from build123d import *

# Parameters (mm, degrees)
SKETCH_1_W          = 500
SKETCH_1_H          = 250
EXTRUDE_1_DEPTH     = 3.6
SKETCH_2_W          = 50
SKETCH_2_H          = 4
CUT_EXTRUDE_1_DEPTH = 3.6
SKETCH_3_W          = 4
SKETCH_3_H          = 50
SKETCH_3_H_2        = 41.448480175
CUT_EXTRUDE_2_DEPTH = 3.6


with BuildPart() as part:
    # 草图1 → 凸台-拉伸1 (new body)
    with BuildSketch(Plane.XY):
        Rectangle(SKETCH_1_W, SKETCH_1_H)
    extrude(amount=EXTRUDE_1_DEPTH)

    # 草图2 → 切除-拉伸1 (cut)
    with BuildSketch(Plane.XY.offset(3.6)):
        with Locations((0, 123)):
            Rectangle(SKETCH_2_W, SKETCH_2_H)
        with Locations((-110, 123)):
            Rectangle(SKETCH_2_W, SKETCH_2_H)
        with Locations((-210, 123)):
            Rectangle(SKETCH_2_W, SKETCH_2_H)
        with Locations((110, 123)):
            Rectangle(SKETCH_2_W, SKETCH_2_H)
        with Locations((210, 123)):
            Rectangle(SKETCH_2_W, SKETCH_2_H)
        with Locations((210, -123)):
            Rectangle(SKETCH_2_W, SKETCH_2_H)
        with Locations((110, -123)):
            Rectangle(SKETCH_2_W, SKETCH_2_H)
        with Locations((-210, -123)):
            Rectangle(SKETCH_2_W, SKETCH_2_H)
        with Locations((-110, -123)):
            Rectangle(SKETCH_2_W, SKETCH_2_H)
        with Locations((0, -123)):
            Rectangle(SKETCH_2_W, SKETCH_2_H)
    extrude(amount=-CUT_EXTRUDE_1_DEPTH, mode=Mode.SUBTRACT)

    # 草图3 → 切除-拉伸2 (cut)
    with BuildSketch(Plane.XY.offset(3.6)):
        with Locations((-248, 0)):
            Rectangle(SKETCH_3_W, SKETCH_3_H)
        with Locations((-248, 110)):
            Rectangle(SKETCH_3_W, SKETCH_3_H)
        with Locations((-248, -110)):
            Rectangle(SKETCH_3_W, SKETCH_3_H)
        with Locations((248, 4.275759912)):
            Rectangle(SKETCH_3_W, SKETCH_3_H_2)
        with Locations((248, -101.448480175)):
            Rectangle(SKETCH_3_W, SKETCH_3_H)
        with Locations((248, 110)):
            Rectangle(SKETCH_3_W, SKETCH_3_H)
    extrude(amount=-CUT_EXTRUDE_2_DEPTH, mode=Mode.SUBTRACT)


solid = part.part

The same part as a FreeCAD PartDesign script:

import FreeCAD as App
import Part
import Sketcher

V = App.Vector
Q = App.Units.Quantity


def add_polygon(sketch, points):
    """Adds a closed chain of lines whose ends are joined by coincident constraints."""
    first, n = sketch.GeometryCount, len(points)
    for a, b in zip(points, points[1:] + points[:1]):
        sketch.addGeometry(Part.LineSegment(App.Vector(*a, 0), App.Vector(*b, 0)), False)
    for i in range(n):
        sketch.addConstraint(Sketcher.Constraint("Coincident", first + i, 2, first + (i + 1) % n, 1))

doc = App.newDocument("Part")
body = doc.addObject("PartDesign::Body", "Body")

# Sketch on XY plane
sketch1 = body.newObject("Sketcher::SketchObject", "Sketch")
sketch1.AttachmentSupport = (doc.getObject("XY_Plane"), [""])
sketch1.MapMode = "FlatFace"
add_polygon(sketch1, [(-250, 125), (-250, -125), (250, -125), (250, 125)])  # lines 0-3
sketch1.addConstraint([
    Sketcher.Constraint("Vertical", 0),
    Sketcher.Constraint("Horizontal", 1),
    Sketcher.Constraint("Vertical", 2),
    Sketcher.Constraint("Horizontal", 3),
    Sketcher.Constraint("Symmetric", 0, 2, 2, 2, -1, 1),
    Sketcher.Constraint("DistanceX", 1, 1, 1, 2, Q("500 mm")),
    Sketcher.Constraint("DistanceY", 0, 2, 0, 1, Q("250 mm")),
])
pad1 = body.newObject("PartDesign::Pad", "Pad")
pad1.Profile = sketch1
pad1.Length = 3.6

# Sketch on XY plane
sketch2 = body.newObject("Sketcher::SketchObject", "Sketch001")
sketch2.AttachmentSupport = (doc.getObject("XY_Plane"), [""])
sketch2.MapMode = "FlatFace"
sketch2.AttachmentOffset = App.Placement(V(0, 0, 3.6), App.Rotation())
add_polygon(sketch2, [(-25, 125), (-25, 121), (25, 121), (25, 125)])  # lines 0-3
add_polygon(sketch2, [(-135, 125), (-135, 121), (-85, 121), (-85, 125)])  # lines 4-7
add_polygon(sketch2, [(-235, 125), (-235, 121), (-185, 121), (-185, 125)])  # lines 8-11
add_polygon(sketch2, [(85, 125), (85, 121), (135, 121), (135, 125)])  # lines 12-15
add_polygon(sketch2, [(185, 125), (185, 121), (235, 121), (235, 125)])  # lines 16-19
add_polygon(sketch2, [(185, -121), (185, -125), (235, -125), (235, -121)])  # lines 20-23
add_polygon(sketch2, [(85, -121), (85, -125), (135, -125), (135, -121)])  # lines 24-27
add_polygon(sketch2, [(-235, -121), (-235, -125), (-185, -125), (-185, -121)])  # lines 28-31
add_polygon(sketch2, [(-135, -121), (-135, -125), (-85, -125), (-85, -121)])  # lines 32-35
add_polygon(sketch2, [(-25, -121), (-25, -125), (25, -125), (25, -121)])  # lines 36-39
sketch2.addConstraint([
    Sketcher.Constraint("Vertical", 0),
    Sketcher.Constraint("Horizontal", 1),
    Sketcher.Constraint("Vertical", 2),
    Sketcher.Constraint("Horizontal", 3),
    Sketcher.Constraint("Vertical", 4),
    Sketcher.Constraint("Horizontal", 5),
    Sketcher.Constraint("Vertical", 6),
    Sketcher.Constraint("Horizontal", 7),
    Sketcher.Constraint("Vertical", 8),
    Sketcher.Constraint("Horizontal", 9),
    Sketcher.Constraint("Vertical", 10),
    Sketcher.Constraint("Horizontal", 11),
    Sketcher.Constraint("Vertical", 12),
    Sketcher.Constraint("Horizontal", 13),
    Sketcher.Constraint("Vertical", 14),
    Sketcher.Constraint("Horizontal", 15),
    Sketcher.Constraint("Vertical", 16),
    Sketcher.Constraint("Horizontal", 17),
    Sketcher.Constraint("Vertical", 18),
    Sketcher.Constraint("Horizontal", 19),
    Sketcher.Constraint("Vertical", 20),
    Sketcher.Constraint("Horizontal", 21),
    Sketcher.Constraint("Vertical", 22),
    Sketcher.Constraint("Horizontal", 23),
    Sketcher.Constraint("Vertical", 24),
    Sketcher.Constraint("Horizontal", 25),
    Sketcher.Constraint("Vertical", 26),
    Sketcher.Constraint("Horizontal", 27),
    Sketcher.Constraint("Vertical", 28),
    Sketcher.Constraint("Horizontal", 29),
    Sketcher.Constraint("Vertical", 30),
    Sketcher.Constraint("Horizontal", 31),
    Sketcher.Constraint("Vertical", 32),
    Sketcher.Constraint("Horizontal", 33),
    Sketcher.Constraint("Vertical", 34),
    Sketcher.Constraint("Horizontal", 35),
    Sketcher.Constraint("Vertical", 36),
    Sketcher.Constraint("Horizontal", 37),
    Sketcher.Constraint("Vertical", 38),
    Sketcher.Constraint("Horizontal", 39),
    Sketcher.Constraint("Symmetric", 10, 2, 20, 2, -1, 1),
    Sketcher.Constraint("Symmetric", 8, 2, 22, 2, -1, 1),
    Sketcher.Constraint("Symmetric", 6, 2, 24, 2, -1, 1),
    Sketcher.Constraint("Symmetric", 4, 2, 26, 2, -1, 1),
    Sketcher.Constraint("Symmetric", 18, 2, 28, 2, -1, 1),
    Sketcher.Constraint("Symmetric", 16, 2, 30, 2, -1, 1),
    Sketcher.Constraint("Symmetric", 14, 2, 32, 2, -1, 1),
    Sketcher.Constraint("Symmetric", 12, 2, 34, 2, -1, 1),
    Sketcher.Constraint("Symmetric", 2, 2, 36, 2, -1, 1),
    Sketcher.Constraint("Symmetric", 0, 2, 38, 2, -1, 1),
    Sketcher.Constraint("Symmetric", 5, 2, 12, 2, -2),
    Sketcher.Constraint("Symmetric", 7, 2, 14, 2, -2),
    Sketcher.Constraint("Symmetric", 9, 2, 16, 2, -2),
    Sketcher.Constraint("Symmetric", 11, 2, 18, 2, -2),
    Sketcher.Constraint("Horizontal", 1, 2, 4, 2),
    Sketcher.Constraint("Horizontal", 3, 2, 6, 2),
    Sketcher.Constraint("Horizontal", 5, 2, 8, 2),
    Sketcher.Constraint("Horizontal", 7, 2, 10, 2),
    Sketcher.Constraint("Vertical", 3, 2, 36, 2),
    Sketcher.Constraint("Equal", 3, 5),
    Sketcher.Constraint("Equal", 7, 9),
    Sketcher.Constraint("DistanceX", 1, 1, 1, 2, Q("50 mm")),
    Sketcher.Constraint("DistanceY", 0, 2, 0, 1, Q("4 mm")),
    Sketcher.Constraint("DistanceY", -1, 1, 0, 2, Q("121 mm")),
    Sketcher.Constraint("DistanceX", 4, 2, -1, 1, Q("135 mm")),
    Sketcher.Constraint("DistanceX", 8, 2, -1, 1, Q("235 mm")),
])
pocket1 = body.newObject("PartDesign::Pocket", "Pocket")
pocket1.Profile = sketch2
pocket1.Length = 3.6

# Sketch on XY plane
sketch3 = body.newObject("Sketcher::SketchObject", "Sketch002")
sketch3.AttachmentSupport = (doc.getObject("XY_Plane"), [""])
sketch3.MapMode = "FlatFace"
sketch3.AttachmentOffset = App.Placement(V(0, 0, 3.6), App.Rotation())
add_polygon(sketch3, [(-250, 25), (-250, -25), (-246, -25), (-246, 25)])  # lines 0-3
add_polygon(sketch3, [(-250, 135), (-250, 85), (-246, 85), (-246, 135)])  # lines 4-7
add_polygon(sketch3, [(-250, -85), (-250, -135), (-246, -135), (-246, -85)])  # lines 8-11
add_polygon(sketch3, [(246, 25), (246, -16.4), (250, -16.4), (250, 25)])  # lines 12-15
add_polygon(sketch3, [(246, -76.4), (246, -126.4), (250, -126.4), (250, -76.4)])  # lines 16-19
add_polygon(sketch3, [(246, 135), (246, 85), (250, 85), (250, 135)])  # lines 20-23
sketch3.addConstraint([
    Sketcher.Constraint("Vertical", 0),
    Sketcher.Constraint("Horizontal", 1),
    Sketcher.Constraint("Vertical", 2),
    Sketcher.Constraint("Horizontal", 3),
    Sketcher.Constraint("Vertical", 4),
    Sketcher.Constraint("Horizontal", 5),
    Sketcher.Constraint("Vertical", 6),
    Sketcher.Constraint("Horizontal", 7),
    Sketcher.Constraint("Vertical", 8),
    Sketcher.Constraint("Horizontal", 9),
    Sketcher.Constraint("Vertical", 10),
    Sketcher.Constraint("Horizontal", 11),
    Sketcher.Constraint("Vertical", 12),
    Sketcher.Constraint("Horizontal", 13),
    Sketcher.Constraint("Vertical", 14),
    Sketcher.Constraint("Horizontal", 15),
    Sketcher.Constraint("Vertical", 16),
    Sketcher.Constraint("Horizontal", 17),
    Sketcher.Constraint("Vertical", 18),
    Sketcher.Constraint("Horizontal", 19),
    Sketcher.Constraint("Vertical", 20),
    Sketcher.Constraint("Horizontal", 21),
    Sketcher.Constraint("Vertical", 22),
    Sketcher.Constraint("Horizontal", 23),
    Sketcher.Constraint("Symmetric", 0, 2, 14, 2, -1, 1),
    Sketcher.Constraint("Symmetric", 10, 2, 20, 2, -1, 1),
    Sketcher.Constraint("Symmetric", 8, 2, 22, 2, -1, 1),
    Sketcher.Constraint("Symmetric", 2, 2, 15, 2, -2),
    Sketcher.Constraint("Symmetric", 5, 2, 20, 2, -2),
    Sketcher.Constraint("Symmetric", 7, 2, 22, 2, -2),
    Sketcher.Constraint("Vertical", 3, 2, 4, 2),
    Sketcher.Constraint("Vertical", 2, 2, 5, 2),
    Sketcher.Constraint("Vertical", 15, 2, 16, 2),
    Sketcher.Constraint("Vertical", 14, 2, 17, 2),
    Sketcher.Constraint("Equal", 2, 4),
    Sketcher.Constraint("Equal", 10, 16),
    Sketcher.Constraint("DistanceX", 1, 1, 1, 2, Q("4 mm")),
    Sketcher.Constraint("DistanceY", 0, 2, 0, 1, Q("50 mm")),
    Sketcher.Constraint("DistanceX", 0, 2, -1, 1, Q("250 mm")),
    Sketcher.Constraint("DistanceY", -1, 1, 4, 2, Q("85 mm")),
    Sketcher.Constraint("DistanceY", 16, 2, 12, 2, Q("110 mm")),
    Sketcher.Constraint("DistanceY", 12, 2, 12, 1, Q("41.44848 mm")),
])
pocket2 = body.newObject("PartDesign::Pocket", "Pocket001")
pocket2.Profile = sketch3
pocket2.Length = 3.6

doc.recompute()
